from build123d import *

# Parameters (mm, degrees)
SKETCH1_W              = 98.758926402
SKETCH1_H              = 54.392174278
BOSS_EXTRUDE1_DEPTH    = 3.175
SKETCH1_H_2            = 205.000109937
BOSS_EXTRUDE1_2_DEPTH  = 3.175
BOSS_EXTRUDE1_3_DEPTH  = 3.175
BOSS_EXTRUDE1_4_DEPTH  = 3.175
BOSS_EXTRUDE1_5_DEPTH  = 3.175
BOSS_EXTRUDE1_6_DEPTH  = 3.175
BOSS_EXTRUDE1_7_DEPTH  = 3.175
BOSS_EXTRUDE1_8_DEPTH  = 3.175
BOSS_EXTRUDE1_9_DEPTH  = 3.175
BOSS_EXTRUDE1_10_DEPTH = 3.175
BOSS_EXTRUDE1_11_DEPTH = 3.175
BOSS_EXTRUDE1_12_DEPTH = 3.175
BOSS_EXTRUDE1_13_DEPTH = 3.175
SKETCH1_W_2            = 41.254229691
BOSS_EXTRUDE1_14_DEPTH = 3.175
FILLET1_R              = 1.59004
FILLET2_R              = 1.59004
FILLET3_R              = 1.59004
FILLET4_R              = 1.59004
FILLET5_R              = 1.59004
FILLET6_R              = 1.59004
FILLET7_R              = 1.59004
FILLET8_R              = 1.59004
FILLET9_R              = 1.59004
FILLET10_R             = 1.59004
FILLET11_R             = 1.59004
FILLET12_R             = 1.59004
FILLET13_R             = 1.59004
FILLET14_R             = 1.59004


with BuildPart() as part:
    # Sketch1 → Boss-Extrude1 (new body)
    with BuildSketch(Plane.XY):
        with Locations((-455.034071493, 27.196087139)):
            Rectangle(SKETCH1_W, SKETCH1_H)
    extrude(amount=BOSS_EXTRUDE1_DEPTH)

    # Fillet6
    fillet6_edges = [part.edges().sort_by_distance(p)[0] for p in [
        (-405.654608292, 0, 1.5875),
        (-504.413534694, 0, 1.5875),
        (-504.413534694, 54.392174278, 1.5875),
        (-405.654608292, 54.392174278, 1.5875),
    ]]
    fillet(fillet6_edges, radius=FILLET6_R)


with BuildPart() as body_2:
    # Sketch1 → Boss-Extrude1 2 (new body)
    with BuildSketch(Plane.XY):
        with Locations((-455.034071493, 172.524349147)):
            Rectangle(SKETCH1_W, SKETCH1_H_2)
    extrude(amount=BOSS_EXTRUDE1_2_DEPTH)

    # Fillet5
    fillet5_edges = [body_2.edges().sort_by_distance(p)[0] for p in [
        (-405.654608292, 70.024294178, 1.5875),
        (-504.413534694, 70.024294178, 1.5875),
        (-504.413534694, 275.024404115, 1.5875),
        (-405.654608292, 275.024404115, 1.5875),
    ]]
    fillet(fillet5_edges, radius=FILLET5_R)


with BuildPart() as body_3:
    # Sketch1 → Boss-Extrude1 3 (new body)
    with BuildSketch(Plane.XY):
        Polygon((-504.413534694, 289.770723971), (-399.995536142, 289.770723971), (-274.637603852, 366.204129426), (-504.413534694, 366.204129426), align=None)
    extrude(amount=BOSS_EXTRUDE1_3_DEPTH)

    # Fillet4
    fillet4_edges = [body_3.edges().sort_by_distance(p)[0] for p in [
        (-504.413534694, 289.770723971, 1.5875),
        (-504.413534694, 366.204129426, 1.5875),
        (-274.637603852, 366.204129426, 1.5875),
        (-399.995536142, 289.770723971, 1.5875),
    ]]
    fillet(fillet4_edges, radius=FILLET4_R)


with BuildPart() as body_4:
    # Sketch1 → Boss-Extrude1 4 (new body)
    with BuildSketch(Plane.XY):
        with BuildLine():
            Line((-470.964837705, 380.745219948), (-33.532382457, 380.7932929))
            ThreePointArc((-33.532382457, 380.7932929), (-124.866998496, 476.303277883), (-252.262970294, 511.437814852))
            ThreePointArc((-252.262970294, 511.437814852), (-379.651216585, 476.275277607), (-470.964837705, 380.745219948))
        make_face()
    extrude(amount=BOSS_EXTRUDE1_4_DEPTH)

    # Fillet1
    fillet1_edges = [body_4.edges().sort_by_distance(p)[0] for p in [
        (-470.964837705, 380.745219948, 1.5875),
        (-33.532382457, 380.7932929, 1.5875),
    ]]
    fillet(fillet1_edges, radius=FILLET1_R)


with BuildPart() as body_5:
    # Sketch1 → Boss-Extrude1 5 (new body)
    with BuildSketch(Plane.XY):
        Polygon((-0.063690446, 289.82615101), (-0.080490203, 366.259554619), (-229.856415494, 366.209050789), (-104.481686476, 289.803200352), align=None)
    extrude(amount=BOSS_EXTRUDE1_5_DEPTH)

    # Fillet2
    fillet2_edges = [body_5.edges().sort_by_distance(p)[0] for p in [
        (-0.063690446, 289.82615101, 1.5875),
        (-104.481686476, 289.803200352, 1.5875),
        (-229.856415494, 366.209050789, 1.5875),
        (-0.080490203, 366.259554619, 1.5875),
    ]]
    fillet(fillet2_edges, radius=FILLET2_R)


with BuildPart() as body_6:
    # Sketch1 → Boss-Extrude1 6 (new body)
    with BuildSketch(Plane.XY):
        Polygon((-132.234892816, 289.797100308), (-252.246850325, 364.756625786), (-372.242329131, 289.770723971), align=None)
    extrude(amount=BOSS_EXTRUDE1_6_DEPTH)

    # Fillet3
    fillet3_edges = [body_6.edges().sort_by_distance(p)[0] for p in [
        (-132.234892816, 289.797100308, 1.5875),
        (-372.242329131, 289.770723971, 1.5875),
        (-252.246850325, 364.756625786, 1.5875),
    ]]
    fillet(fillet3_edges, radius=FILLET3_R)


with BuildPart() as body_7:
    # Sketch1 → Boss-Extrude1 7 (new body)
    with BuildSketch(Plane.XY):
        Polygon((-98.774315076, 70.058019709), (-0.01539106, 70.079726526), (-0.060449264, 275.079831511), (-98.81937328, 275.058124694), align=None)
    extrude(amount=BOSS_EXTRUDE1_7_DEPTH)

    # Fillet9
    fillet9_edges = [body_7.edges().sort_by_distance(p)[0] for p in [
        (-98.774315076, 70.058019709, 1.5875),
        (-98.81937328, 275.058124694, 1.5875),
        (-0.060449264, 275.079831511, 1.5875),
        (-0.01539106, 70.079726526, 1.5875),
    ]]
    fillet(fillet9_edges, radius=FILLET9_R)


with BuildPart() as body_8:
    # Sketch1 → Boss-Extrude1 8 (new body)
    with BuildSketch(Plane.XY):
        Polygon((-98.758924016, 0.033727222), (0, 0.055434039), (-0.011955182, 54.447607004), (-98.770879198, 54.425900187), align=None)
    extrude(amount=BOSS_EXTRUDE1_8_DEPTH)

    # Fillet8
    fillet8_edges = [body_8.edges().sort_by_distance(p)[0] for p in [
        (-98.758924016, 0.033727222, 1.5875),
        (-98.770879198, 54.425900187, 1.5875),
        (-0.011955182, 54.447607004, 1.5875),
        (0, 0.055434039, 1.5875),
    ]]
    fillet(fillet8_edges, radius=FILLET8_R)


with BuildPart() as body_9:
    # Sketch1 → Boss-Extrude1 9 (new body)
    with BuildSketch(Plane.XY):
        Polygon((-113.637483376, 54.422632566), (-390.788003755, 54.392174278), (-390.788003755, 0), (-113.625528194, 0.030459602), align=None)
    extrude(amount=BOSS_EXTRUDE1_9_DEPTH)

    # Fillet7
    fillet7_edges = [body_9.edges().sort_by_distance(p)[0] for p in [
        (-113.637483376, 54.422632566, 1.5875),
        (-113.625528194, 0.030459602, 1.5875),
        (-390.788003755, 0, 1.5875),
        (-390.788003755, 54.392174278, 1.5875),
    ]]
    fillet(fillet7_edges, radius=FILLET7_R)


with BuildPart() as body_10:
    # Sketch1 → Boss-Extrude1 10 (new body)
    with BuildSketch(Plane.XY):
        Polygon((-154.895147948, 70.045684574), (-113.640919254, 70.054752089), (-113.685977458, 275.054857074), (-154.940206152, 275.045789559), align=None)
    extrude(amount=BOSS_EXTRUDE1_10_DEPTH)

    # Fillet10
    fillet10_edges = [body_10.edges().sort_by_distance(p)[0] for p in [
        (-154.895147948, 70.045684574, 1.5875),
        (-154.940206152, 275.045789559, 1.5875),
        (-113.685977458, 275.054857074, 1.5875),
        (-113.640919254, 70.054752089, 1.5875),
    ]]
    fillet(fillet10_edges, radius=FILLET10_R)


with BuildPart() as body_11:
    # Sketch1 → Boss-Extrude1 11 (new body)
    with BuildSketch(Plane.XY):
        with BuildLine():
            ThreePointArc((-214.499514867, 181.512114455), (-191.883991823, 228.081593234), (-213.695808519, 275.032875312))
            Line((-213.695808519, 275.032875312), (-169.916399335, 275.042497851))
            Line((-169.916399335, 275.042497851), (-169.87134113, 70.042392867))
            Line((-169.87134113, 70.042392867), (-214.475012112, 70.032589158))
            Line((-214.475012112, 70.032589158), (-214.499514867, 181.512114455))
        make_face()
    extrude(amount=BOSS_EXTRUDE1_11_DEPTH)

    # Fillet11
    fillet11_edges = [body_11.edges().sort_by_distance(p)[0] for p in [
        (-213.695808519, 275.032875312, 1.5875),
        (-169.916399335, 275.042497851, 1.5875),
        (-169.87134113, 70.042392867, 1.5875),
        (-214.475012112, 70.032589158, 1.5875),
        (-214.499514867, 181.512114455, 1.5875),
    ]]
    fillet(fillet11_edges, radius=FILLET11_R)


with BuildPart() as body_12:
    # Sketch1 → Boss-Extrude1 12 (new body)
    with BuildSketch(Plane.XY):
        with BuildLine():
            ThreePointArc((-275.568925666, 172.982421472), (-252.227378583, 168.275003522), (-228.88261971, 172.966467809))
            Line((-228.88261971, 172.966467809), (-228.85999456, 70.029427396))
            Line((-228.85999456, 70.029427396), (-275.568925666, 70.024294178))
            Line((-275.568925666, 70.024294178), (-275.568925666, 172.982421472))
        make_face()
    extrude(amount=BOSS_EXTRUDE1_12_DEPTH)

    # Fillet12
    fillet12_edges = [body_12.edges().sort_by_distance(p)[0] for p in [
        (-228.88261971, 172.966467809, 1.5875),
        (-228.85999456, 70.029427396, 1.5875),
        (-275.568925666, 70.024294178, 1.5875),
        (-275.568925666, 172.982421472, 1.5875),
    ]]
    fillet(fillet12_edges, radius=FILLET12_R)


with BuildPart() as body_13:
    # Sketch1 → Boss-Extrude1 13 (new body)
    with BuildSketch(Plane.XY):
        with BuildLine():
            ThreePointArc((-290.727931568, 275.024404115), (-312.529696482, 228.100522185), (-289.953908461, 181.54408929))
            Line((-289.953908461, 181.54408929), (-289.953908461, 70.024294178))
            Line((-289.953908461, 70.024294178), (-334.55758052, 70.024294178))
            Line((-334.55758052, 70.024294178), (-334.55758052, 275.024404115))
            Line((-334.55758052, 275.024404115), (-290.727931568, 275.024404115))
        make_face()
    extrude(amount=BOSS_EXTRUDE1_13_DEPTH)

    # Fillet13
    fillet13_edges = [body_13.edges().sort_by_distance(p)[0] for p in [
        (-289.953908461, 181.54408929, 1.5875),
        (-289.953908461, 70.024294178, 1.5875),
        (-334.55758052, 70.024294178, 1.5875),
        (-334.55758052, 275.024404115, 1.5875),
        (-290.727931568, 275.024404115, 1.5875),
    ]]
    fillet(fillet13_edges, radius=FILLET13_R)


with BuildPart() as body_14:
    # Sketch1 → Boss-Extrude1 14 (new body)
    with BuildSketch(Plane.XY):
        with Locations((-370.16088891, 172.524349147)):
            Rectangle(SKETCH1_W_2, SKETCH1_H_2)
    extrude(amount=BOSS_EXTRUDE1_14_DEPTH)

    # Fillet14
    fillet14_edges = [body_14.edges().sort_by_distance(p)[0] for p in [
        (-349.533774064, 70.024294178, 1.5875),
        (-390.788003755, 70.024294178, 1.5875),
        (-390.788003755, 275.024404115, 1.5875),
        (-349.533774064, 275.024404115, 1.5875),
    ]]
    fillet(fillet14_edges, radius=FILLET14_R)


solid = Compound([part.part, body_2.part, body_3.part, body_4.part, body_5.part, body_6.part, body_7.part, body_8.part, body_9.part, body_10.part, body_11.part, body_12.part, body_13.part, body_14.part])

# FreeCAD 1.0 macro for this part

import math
import FreeCAD as App
import Part
import Sketcher
from FreeCAD import Vector
Q = App.Units.Quantity


def edges_at(feature, points):
    """Names of the edges that pass closest to the given points."""
    edges = feature.Shape.Edges
    near = lambda p: min(range(len(edges)), key=lambda i: edges[i].distToShape(Part.Vertex(*p))[0])
    return sorted({f"Edge{near(p) + 1}" for p in points})


def add_polygon(sketch, points):
    """Adds a closed chain of lines whose ends are joined by coincident constraints."""
    first, n = sketch.GeometryCount, len(points)
    for a, b in zip(points, points[1:] + points[:1]):
        sketch.addGeometry(Part.LineSegment(App.Vector(*a, 0), App.Vector(*b, 0)), False)
    for i in range(n):
        sketch.addConstraint(Sketcher.Constraint("Coincident", first + i, 2, first + (i + 1) % n, 1))

doc = App.newDocument("Part")
params = doc.addObject("Spreadsheet::Sheet", "Params")
for row, (alias, value) in enumerate([
    ("pad1_length", "0.125 in"),
    ("fillet_radius", "0.0626 in"),
    ("pad2_length", "0.125 in"),
    ("fillet2_radius", "0.0626 in"),
    ("pad3_length", "0.125 in"),
    ("fillet3_radius", "0.0626 in"),
    ("pad4_length", "0.125 in"),
    ("fillet4_radius", "0.0626 in"),
    ("pad5_length", "0.125 in"),
    ("fillet5_radius", "0.0626 in"),
    ("pad6_length", "0.125 in"),
    ("fillet6_radius", "0.0626 in"),
    ("pad7_length", "0.125 in"),
    ("fillet7_radius", "0.0626 in"),
    ("pad8_length", "0.125 in"),
    ("fillet8_radius", "0.0626 in"),
    ("pad9_length", "0.125 in"),
    ("fillet9_radius", "0.0626 in"),
    ("pad10_length", "0.125 in"),
    ("fillet10_radius", "0.0626 in"),
    ("sketch11_radius", "2.375 in"),
    ("pad11_length", "0.125 in"),
    ("fillet11_radius", "0.0626 in"),
    ("sketch12_radius", "2.375 in"),
    ("pad12_length", "0.125 in"),
    ("fillet12_radius", "0.0626 in"),
    ("sketch13_radius", "2.375 in"),
    ("pad13_length", "0.125 in"),
    ("fillet13_radius", "0.0626 in"),
    ("pad14_length", "0.125 in"),
    ("fillet14_radius", "0.0626 in"),
], start=1):
    params.set(f"A{row}", alias)
    params.set(f"B{row}", "=" + value)
    params.setAlias(f"B{row}", alias)

body = doc.addObject("PartDesign::Body", "Body")

# Sketch on XY plane
sketch1 = doc.addObject("Sketcher::SketchObject", "Sketch")
body.addObject(sketch1)
sketch1.AttachmentSupport = (doc.XY_Plane, [""])
sketch1.MapMode = "FlatFace"
add_polygon(sketch1, [(-504, 54), (-504, 0), (-406, 0), (-406, 54)])  # lines 0-3
sketch1.addConstraint([
    Sketcher.Constraint("Vertical", 0),
    Sketcher.Constraint("Horizontal", 1),
    Sketcher.Constraint("Vertical", 2),
    Sketcher.Constraint("Horizontal", 3),
    Sketcher.Constraint("PointOnObject", 0, 2, -1),
    Sketcher.Constraint("DistanceX", 1, 1, 1, 2, Q("98.758926 mm")),
    Sketcher.Constraint("DistanceY", 0, 2, 0, 1, Q("54.392174 mm")),
    Sketcher.Constraint("DistanceX", 1, 2, -1, 1, Q("405.654608 mm")),
])
pad1 = doc.addObject("PartDesign::Pad", "Pad")
body.addObject(pad1)
pad1.Profile = sketch1
pad1.setExpression("Length", "Params.pad1_length")
doc.recompute()

fillet = doc.addObject("PartDesign::Fillet", "Fillet")
body.addObject(fillet)
fillet.Base = (pad1, edges_at(pad1, [
    (-405.655, 0, 1.587),
    (-504.414, 0, 1.587),
    (-504.414, 54.392, 1.587),
    (-405.655, 54.392, 1.587),
]))
fillet.setExpression("Radius", "Params.fillet_radius")
body2 = doc.addObject("PartDesign::Body", "Body001")

# Sketch on XY plane
sketch2 = doc.addObject("Sketcher::SketchObject", "Sketch001")
body2.addObject(sketch2)
sketch2.AttachmentSupport = (doc.getObject("XY_Plane001"), [""])
sketch2.MapMode = "FlatFace"
add_polygon(sketch2, [(-504, 275), (-504, 70), (-406, 70), (-406, 275)])  # lines 0-3
sketch2.addConstraint([
    Sketcher.Constraint("Vertical", 0),
    Sketcher.Constraint("Horizontal", 1),
    Sketcher.Constraint("Vertical", 2),
    Sketcher.Constraint("Horizontal", 3),
    Sketcher.Constraint("DistanceY", 0, 2, 0, 1, Q("205.00011 mm")),
    Sketcher.Constraint("DistanceX", 1, 1, 1, 2, Q("98.758926 mm")),
    Sketcher.Constraint("DistanceX", 1, 2, -1, 1, Q("405.654608 mm")),
    Sketcher.Constraint("DistanceY", -1, 1, 0, 2, Q("70.024294 mm")),
])
pad2 = doc.addObject("PartDesign::Pad", "Pad001")
body2.addObject(pad2)
pad2.Profile = sketch2
pad2.setExpression("Length", "Params.pad2_length")
doc.recompute()

fillet2 = doc.addObject("PartDesign::Fillet", "Fillet001")
body2.addObject(fillet2)
fillet2.Base = (pad2, edges_at(pad2, [
    (-405.655, 70.024, 1.587),
    (-504.414, 70.024, 1.587),
    (-504.414, 275.024, 1.587),
    (-405.655, 275.024, 1.587),
]))
fillet2.setExpression("Radius", "Params.fillet2_radius")
body3 = doc.addObject("PartDesign::Body", "Body002")

# Sketch on XY plane
sketch3 = doc.addObject("Sketcher::SketchObject", "Sketch002")
body3.addObject(sketch3)
sketch3.AttachmentSupport = (doc.getObject("XY_Plane002"), [""])
sketch3.MapMode = "FlatFace"
add_polygon(sketch3, [(-504, 290), (-400, 290), (-275, 366), (-504, 366)])  # lines 0-3
sketch3.addConstraint([
    Sketcher.Constraint("Horizontal", 0),
    Sketcher.Constraint("Horizontal", 2),
    Sketcher.Constraint("Vertical", 3),
    Sketcher.Constraint("DistanceX", 0, 1, 0, 2, Q("104.417999 mm")),
    Sketcher.Constraint("DistanceX", 2, 2, 2, 1, Q("229.775931 mm")),
    Sketcher.Constraint("Distance", 1, Q("146.821922 mm")),
    Sketcher.Constraint("DistanceY", -1, 1, 1, 2, Q("366.204129 mm")),
    Sketcher.Constraint("DistanceX", 0, 2, -1, 1, Q("399.995536 mm")),
])
pad3 = doc.addObject("PartDesign::Pad", "Pad002")
body3.addObject(pad3)
pad3.Profile = sketch3
pad3.setExpression("Length", "Params.pad3_length")
doc.recompute()

fillet3 = doc.addObject("PartDesign::Fillet", "Fillet002")
body3.addObject(fillet3)
fillet3.Base = (pad3, edges_at(pad3, [
    (-504.414, 289.771, 1.587),
    (-504.414, 366.204, 1.587),
    (-274.638, 366.204, 1.587),
    (-399.996, 289.771, 1.587),
]))
fillet3.setExpression("Radius", "Params.fillet3_radius")
body4 = doc.addObject("PartDesign::Body", "Body003")

# Sketch on XY plane
sketch4 = doc.addObject("Sketcher::SketchObject", "Sketch003")
body4.addObject(sketch4)
sketch4.AttachmentSupport = (doc.getObject("XY_Plane003"), [""])
sketch4.MapMode = "FlatFace"
sketch4.addGeometry([
    Part.LineSegment(Vector(-471, 381, 0), Vector(-34, 381, 0)),
    Part.ArcOfCircle(Part.Circle(Vector(-252, 263, 0), Vector(0, 0, 1), 248), math.radians(28), math.radians(90)),
    Part.ArcOfCircle(Part.Circle(Vector(-252, 263, 0), Vector(0, 0, 1), 248), math.radians(90), math.radians(152)),
], False)
sketch4.addConstraint([
    Sketcher.Constraint("Coincident", 0, 2, 1, 1),
    Sketcher.Constraint("Coincident", 1, 2, 2, 1),
    Sketcher.Constraint("Coincident", 2, 2, 0, 1),
    Sketcher.Constraint("Equal", 1, 2),
    Sketcher.Constraint("Vertical", 2, 3, 1, 2),
    Sketcher.Constraint("Radius", 1, Q("248.334885 mm")),
    Sketcher.Constraint("DistanceX", 2, 3, -1, 1, Q("252.26297 mm")),
    Sketcher.Constraint("DistanceY", -1, 1, 2, 3, Q("263.102929 mm")),
    Sketcher.Constraint("DistanceY", -1, 1, 2, 2, Q("380.74522 mm")),
    Sketcher.Constraint("DistanceY", 0, 2, 1, 2, Q("130.644522 mm")),
    Sketcher.Constraint("DistanceX", 2, 2, 1, 3, Q("218.75645 mm")),
])
pad4 = doc.addObject("PartDesign::Pad", "Pad003")
body4.addObject(pad4)
pad4.Profile = sketch4
pad4.setExpression("Length", "Params.pad4_length")
doc.recompute()

fillet4 = doc.addObject("PartDesign::Fillet", "Fillet003")
body4.addObject(fillet4)
fillet4.Base = (pad4, edges_at(pad4, [(-470.965, 380.745, 1.587), (-33.532, 380.793, 1.587)]))
fillet4.setExpression("Radius", "Params.fillet4_radius")
body5 = doc.addObject("PartDesign::Body", "Body004")

# Sketch on XY plane
sketch5 = doc.addObject("Sketcher::SketchObject", "Sketch004")
body5.addObject(sketch5)
sketch5.AttachmentSupport = (doc.getObject("XY_Plane004"), [""])
sketch5.MapMode = "FlatFace"
add_polygon(sketch5, [(0, 290), (0, 366), (-230, 366), (-104, 290)])  # lines 0-3
sketch5.addConstraint([
    Sketcher.Constraint("Perpendicular", 0, 1),
    Sketcher.Constraint("Parallel", 1, 3),
    Sketcher.Constraint("Distance", 3, Q("104.417999 mm")),
    Sketcher.Constraint("DistanceY", -1, 1, 2, 2, Q("289.8032 mm")),
    Sketcher.Constraint("DistanceX", 0, 2, 3, 2, Q("0.0168 mm")),
    Sketcher.Constraint("DistanceY", 3, 2, 1, 2, Q("76.3829 mm")),
    Sketcher.Constraint("Distance", 1, Q("229.775931 mm")),
    Sketcher.Constraint("DistanceX", 0, 2, -1, 1, Q("0.08049 mm")),
])
pad5 = doc.addObject("PartDesign::Pad", "Pad004")
body5.addObject(pad5)
pad5.Profile = sketch5
pad5.setExpression("Length", "Params.pad5_length")
doc.recompute()

fillet5 = doc.addObject("PartDesign::Fillet", "Fillet004")
body5.addObject(fillet5)
fillet5.Base = (pad5, edges_at(pad5, [
    (-0.064, 289.826, 1.587),
    (-104.482, 289.803, 1.587),
    (-229.856, 366.209, 1.587),
    (-0.08, 366.26, 1.587),
]))
fillet5.setExpression("Radius", "Params.fillet5_radius")
body6 = doc.addObject("PartDesign::Body", "Body005")

# Sketch on XY plane
sketch6 = doc.addObject("Sketcher::SketchObject", "Sketch005")
body6.addObject(sketch6)
sketch6.AttachmentSupport = (doc.getObject("XY_Plane005"), [""])
sketch6.MapMode = "FlatFace"
add_polygon(sketch6, [(-132, 290), (-252, 365), (-372, 290)])  # lines 0-2
sketch6.addConstraint([
    Sketcher.Constraint("Equal", 0, 1),
    Sketcher.Constraint("DistanceY", -1, 1, 2, 2, Q("289.7971 mm")),
    Sketcher.Constraint("DistanceY", 1, 2, 0, 2, Q("74.985902 mm")),
    Sketcher.Constraint("Distance", 0, Q("141.498411 mm")),
    Sketcher.Constraint("DistanceX", 0, 2, -1, 1, Q("252.24685 mm")),
    Sketcher.Constraint("Distance", 2, Q("240.007438 mm")),
])
pad6 = doc.addObject("PartDesign::Pad", "Pad005")
body6.addObject(pad6)
pad6.Profile = sketch6
pad6.setExpression("Length", "Params.pad6_length")
doc.recompute()

fillet6 = doc.addObject("PartDesign::Fillet", "Fillet005")
body6.addObject(fillet6)
fillet6.Base = (pad6, edges_at(pad6, [(-132.235, 289.797, 1.587), (-372.242, 289.771, 1.587), (-252.247, 364.757, 1.587)]))
fillet6.setExpression("Radius", "Params.fillet6_radius")
body7 = doc.addObject("PartDesign::Body", "Body006")

# Sketch on XY plane
sketch7 = doc.addObject("Sketcher::SketchObject", "Sketch006")
body7.addObject(sketch7)
sketch7.AttachmentSupport = (doc.getObject("XY_Plane006"), [""])
sketch7.MapMode = "FlatFace"
add_polygon(sketch7, [(-99, 70), (0, 70), (0, 275), (-99, 275)])  # lines 0-3
sketch7.addConstraint([
    Sketcher.Constraint("Perpendicular", 0, 1),
    Sketcher.Constraint("Perpendicular", 1, 2),
    Sketcher.Constraint("Perpendicular", 2, 3),
    Sketcher.Constraint("DistanceY", 0, 2, 2, 2, Q("204.978398 mm")),
    Sketcher.Constraint("Distance", 1, Q("205.00011 mm")),
    Sketcher.Constraint("DistanceX", 0, 2, -1, 1, Q("0.015391 mm")),
    Sketcher.Constraint("DistanceY", -1, 1, 1, 2, Q("275.079832 mm")),
    Sketcher.Constraint("Distance", 0, Q("98.758926 mm")),
])
pad7 = doc.addObject("PartDesign::Pad", "Pad006")
body7.addObject(pad7)
pad7.Profile = sketch7
pad7.setExpression("Length", "Params.pad7_length")
doc.recompute()

fillet7 = doc.addObject("PartDesign::Fillet", "Fillet006")
body7.addObject(fillet7)
fillet7.Base = (pad7, edges_at(pad7, [
    (-98.774, 70.058, 1.587),
    (-98.819, 275.058, 1.587),
    (-0.06, 275.08, 1.587),
    (-0.015, 70.08, 1.587),
]))
fillet7.setExpression("Radius", "Params.fillet7_radius")
body8 = doc.addObject("PartDesign::Body", "Body007")

# Sketch on XY plane
sketch8 = doc.addObject("Sketcher::SketchObject", "Sketch007")
body8.addObject(sketch8)
sketch8.AttachmentSupport = (doc.getObject("XY_Plane007"), [""])
sketch8.MapMode = "FlatFace"
add_polygon(sketch8, [(-99, 0), (0, 0), (0, 54), (-99, 54)])  # lines 0-3
sketch8.addConstraint([
    Sketcher.Constraint("PointOnObject", 0, 2, -2),
    Sketcher.Constraint("Perpendicular", 0, 1),
    Sketcher.Constraint("Perpendicular", 1, 2),
    Sketcher.Constraint("Perpendicular", 2, 3),
    Sketcher.Constraint("DistanceY", -1, 1, 2, 2, Q("54.4259 mm")),
    Sketcher.Constraint("DistanceX", 2, 2, -1, 1, Q("98.770879 mm")),
    Sketcher.Constraint("DistanceX", 3, 2, 1, 2, Q("98.746969 mm")),
    Sketcher.Constraint("DistanceY", 3, 2, 1, 2, Q("54.41388 mm")),
])
pad8 = doc.addObject("PartDesign::Pad", "Pad007")
body8.addObject(pad8)
pad8.Profile = sketch8
pad8.setExpression("Length", "Params.pad8_length")
doc.recompute()

fillet8 = doc.addObject("PartDesign::Fillet", "Fillet007")
body8.addObject(fillet8)
fillet8.Base = (pad8, edges_at(pad8, [
    (-98.759, 0.034, 1.587),
    (-98.771, 54.426, 1.587),
    (-0.012, 54.448, 1.587),
    (0, 0.055, 1.587),
]))
fillet8.setExpression("Radius", "Params.fillet8_radius")
body9 = doc.addObject("PartDesign::Body", "Body008")

# Sketch on XY plane
sketch9 = doc.addObject("Sketcher::SketchObject", "Sketch008")
body9.addObject(sketch9)
sketch9.AttachmentSupport = (doc.getObject("XY_Plane008"), [""])
sketch9.MapMode = "FlatFace"
add_polygon(sketch9, [(-114, 54), (-391, 54), (-391, 0), (-114, 0)])  # lines 0-3
sketch9.addConstraint([
    Sketcher.Constraint("Vertical", 1),
    Sketcher.Constraint("PointOnObject", 1, 2, -1),
    Sketcher.Constraint("Parallel", 0, 2),
    Sketcher.Constraint("DistanceY", 1, 2, 1, 1, Q("54.392174 mm")),
    Sketcher.Constraint("DistanceX", 2, 2, -1, 1, Q("113.625528 mm")),
    Sketcher.Constraint("DistanceY", -1, 1, 2, 2, Q("0.03046 mm")),
    Sketcher.Constraint("DistanceX", 0, 2, 3, 2, Q("277.15052 mm")),
    Sketcher.Constraint("Distance", 2, Q("277.162477 mm")),
])
pad9 = doc.addObject("PartDesign::Pad", "Pad008")
body9.addObject(pad9)
pad9.Profile = sketch9
pad9.setExpression("Length", "Params.pad9_length")
doc.recompute()

fillet9 = doc.addObject("PartDesign::Fillet", "Fillet008")
body9.addObject(fillet9)
fillet9.Base = (pad9, edges_at(pad9, [
    (-113.637, 54.423, 1.587),
    (-113.626, 0.03, 1.587),
    (-390.788, 0, 1.587),
    (-390.788, 54.392, 1.587),
]))
fillet9.setExpression("Radius", "Params.fillet9_radius")
body10 = doc.addObject("PartDesign::Body", "Body009")

# Sketch on XY plane
sketch10 = doc.addObject("Sketcher::SketchObject", "Sketch009")
body10.addObject(sketch10)
sketch10.AttachmentSupport = (doc.getObject("XY_Plane009"), [""])
sketch10.MapMode = "FlatFace"
add_polygon(sketch10, [(-155, 70), (-114, 70), (-114, 275), (-155, 275)])  # lines 0-3
sketch10.addConstraint([
    Sketcher.Constraint("Perpendicular", 0, 1),
    Sketcher.Constraint("Perpendicular", 1, 2),
    Sketcher.Constraint("Perpendicular", 2, 3),
    Sketcher.Constraint("Distance", 0, Q("41.25423 mm")),
    Sketcher.Constraint("Distance", 1, Q("205.00011 mm")),
    Sketcher.Constraint("DistanceX", 0, 2, -1, 1, Q("113.640919 mm")),
    Sketcher.Constraint("DistanceY", -1, 1, 2, 2, Q("275.04579 mm")),
    Sketcher.Constraint("DistanceX", 1, 2, 0, 2, Q("0.045058 mm")),
])
pad10 = doc.addObject("PartDesign::Pad", "Pad009")
body10.addObject(pad10)
pad10.Profile = sketch10
pad10.setExpression("Length", "Params.pad10_length")
doc.recompute()

fillet10 = doc.addObject("PartDesign::Fillet", "Fillet009")
body10.addObject(fillet10)
fillet10.Base = (pad10, edges_at(pad10, [
    (-154.895, 70.046, 1.587),
    (-154.94, 275.046, 1.587),
    (-113.686, 275.055, 1.587),
    (-113.641, 70.055, 1.587),
]))
fillet10.setExpression("Radius", "Params.fillet10_radius")
body11 = doc.addObject("PartDesign::Body", "Body010")

# Sketch on XY plane
sketch11 = doc.addObject("Sketcher::SketchObject", "Sketch010")
body11.addObject(sketch11)
sketch11.AttachmentSupport = (doc.getObject("XY_Plane010"), [""])
sketch11.MapMode = "FlatFace"
sketch11.addGeometry([
    Part.ArcOfCircle(Part.Circle(Vector(-252.206764, 228.6, 0), Vector(0, 0, 1), 60.325), math.radians(-51.312794), math.radians(50.328032)),  # 0
    Part.LineSegment(Vector(-214.499515, 181.512114, 0), Vector(-214.475012, 70.032589, 0)),  # 1
    Part.LineSegment(Vector(-214.475012, 70.032589, 0), Vector(-169.871341, 70.042393, 0)),  # 2
    Part.LineSegment(Vector(-169.871341, 70.042393, 0), Vector(-169.916399, 275.042498, 0)),  # 3
    Part.LineSegment(Vector(-169.916399, 275.042498, 0), Vector(-213.695809, 275.032875, 0)),  # 4
], False)
sketch11.addConstraint([
    Sketcher.Constraint("Coincident", 0, 1, 1, 1),
    Sketcher.Constraint("Coincident", 1, 2, 2, 1),
    Sketcher.Constraint("Coincident", 2, 2, 3, 1),
    Sketcher.Constraint("Coincident", 3, 2, 4, 1),
    Sketcher.Constraint("Coincident", 4, 2, 0, 2),
    Sketcher.Constraint("DistanceY", -1, 1, 0, 3, Q("9 in")),
    Sketcher.Constraint("Radius", 0, Q("2.375 in")),
    Sketcher.Constraint("DistanceX", 0, 3, -1, 1, Q("9.9294002 in")),
    Sketcher.Constraint("DistanceX", 3, 2, -1, 1, Q("169.916399 mm")),
    Sketcher.Constraint("Distance", 3, Q("205.00011 mm")),
    Sketcher.Constraint("Distance", 4, Q("43.77941 mm")),
    Sketcher.Constraint("DistanceY", -1, 1, 1, 2, Q("70.032589 mm")),
    Sketcher.Constraint("DistanceX", 2, 2, -1, 1, Q("169.871341 mm")),
    Sketcher.Constraint("DistanceX", 0, 3, 0, 1, Q("37.707249 mm")),
    Sketcher.Constraint("DistanceX", 1, 2, 2, 2, Q("44.603671 mm")),
    Sketcher.Constraint("DistanceY", 2, 2, 0, 1, Q("111.469722 mm")),
])
sketch11.setExpression("Constraints[6]", "Params.sketch11_radius")
pad11 = doc.addObject("PartDesign::Pad", "Pad010")
body11.addObject(pad11)
pad11.Profile = sketch11
pad11.setExpression("Length", "Params.pad11_length")
doc.recompute()

fillet11 = doc.addObject("PartDesign::Fillet", "Fillet010")
body11.addObject(fillet11)
fillet11.Base = (pad11, edges_at(pad11, [
    (-213.696, 275.033, 1.587),
    (-169.916, 275.042, 1.587),
    (-169.871, 70.042, 1.587),
    (-214.475, 70.033, 1.587),
    (-214.5, 181.512, 1.587),
]))
fillet11.setExpression("Radius", "Params.fillet11_radius")
body12 = doc.addObject("PartDesign::Body", "Body011")

# Sketch on XY plane
sketch12 = doc.addObject("Sketcher::SketchObject", "Sketch011")
body12.addObject(sketch12)
sketch12.AttachmentSupport = (doc.getObject("XY_Plane011"), [""])
sketch12.MapMode = "FlatFace"
sketch12.addGeometry([
    Part.ArcOfCircle(Part.Circle(Vector(-252, 229, 0), Vector(0, 0, 1), 60), math.radians(-113), math.radians(-67)),
    Part.LineSegment(Vector(-276, 173, 0), Vector(-276, 70, 0)),
    Part.LineSegment(Vector(-276, 70, 0), Vector(-229, 70, 0)),
    Part.LineSegment(Vector(-229, 70, 0), Vector(-229, 173, 0)),
], False)
sketch12.addConstraint([
    Sketcher.Constraint("Coincident", 0, 1, 1, 1),
    Sketcher.Constraint("Coincident", 1, 2, 2, 1),
    Sketcher.Constraint("Coincident", 2, 2, 3, 1),
    Sketcher.Constraint("Coincident", 3, 2, 0, 2),
    Sketcher.Constraint("Vertical", 1),
    Sketcher.Constraint("DistanceY", -1, 1, 0, 3, Q("9 in")),
    Sketcher.Constraint("Radius", 0, Q("2.375 in")),
    Sketcher.Constraint("DistanceX", 0, 3, -1, 1, Q("9.9294002 in")),
    Sketcher.Constraint("Distance", 2, Q("46.708931 mm")),
    Sketcher.Constraint("DistanceY", 1, 2, 1, 1, Q("102.958127 mm")),
    Sketcher.Constraint("DistanceY", -1, 1, 0, 1, Q("172.982421 mm")),
    Sketcher.Constraint("DistanceX", 3, 2, -1, 1, Q("228.88262 mm")),
    Sketcher.Constraint("DistanceY", 2, 2, 3, 2, Q("102.93704 mm")),
])
sketch12.setExpression("Constraints[6]", "Params.sketch12_radius")
pad12 = doc.addObject("PartDesign::Pad", "Pad011")
body12.addObject(pad12)
pad12.Profile = sketch12
pad12.setExpression("Length", "Params.pad12_length")
doc.recompute()

fillet12 = doc.addObject("PartDesign::Fillet", "Fillet011")
body12.addObject(fillet12)
fillet12.Base = (pad12, edges_at(pad12, [
    (-228.883, 172.966, 1.587),
    (-228.86, 70.029, 1.587),
    (-275.569, 70.024, 1.587),
    (-275.569, 172.982, 1.587),
]))
fillet12.setExpression("Radius", "Params.fillet12_radius")
body13 = doc.addObject("PartDesign::Body", "Body012")

# Sketch on XY plane
sketch13 = doc.addObject("Sketcher::SketchObject", "Sketch012")
body13.addObject(sketch13)
sketch13.AttachmentSupport = (doc.getObject("XY_Plane012"), [""])
sketch13.MapMode = "FlatFace"
sketch13.addGeometry([
    Part.ArcOfCircle(Part.Circle(Vector(-252, 229, 0), Vector(0, 0, 1), 60), math.radians(130), math.radians(231)),  # 0
    Part.LineSegment(Vector(-291, 275, 0), Vector(-335, 275, 0)),  # 1
    Part.LineSegment(Vector(-335, 275, 0), Vector(-335, 70, 0)),  # 2
    Part.LineSegment(Vector(-335, 70, 0), Vector(-290, 70, 0)),  # 3
    Part.LineSegment(Vector(-290, 70, 0), Vector(-290, 182, 0)),  # 4
], False)
sketch13.addConstraint([
    Sketcher.Constraint("Coincident", 0, 1, 1, 1),
    Sketcher.Constraint("Coincident", 1, 2, 2, 1),
    Sketcher.Constraint("Coincident", 2, 2, 3, 1),
    Sketcher.Constraint("Coincident", 3, 2, 4, 1),
    Sketcher.Constraint("Coincident", 4, 2, 0, 2),
    Sketcher.Constraint("Horizontal", 1),
    Sketcher.Constraint("Vertical", 2),
    Sketcher.Constraint("Horizontal", 3),
    Sketcher.Constraint("Vertical", 4),
    Sketcher.Constraint("DistanceY", -1, 1, 0, 3, Q("9 in")),
    Sketcher.Constraint("Radius", 0, Q("2.375 in")),
    Sketcher.Constraint("DistanceX", 0, 3, -1, 1, Q("9.9294002 in")),
    Sketcher.Constraint("DistanceX", 1, 2, 1, 1, Q("43.829649 mm")),
    Sketcher.Constraint("DistanceY", 2, 2, 2, 1, Q("205.00011 mm")),
    Sketcher.Constraint("DistanceX", 3, 1, 3, 2, Q("44.603672 mm")),
    Sketcher.Constraint("DistanceY", 4, 1, 4, 2, Q("111.519795 mm")),
])
sketch13.setExpression("Constraints[10]", "Params.sketch13_radius")
pad13 = doc.addObject("PartDesign::Pad", "Pad012")
body13.addObject(pad13)
pad13.Profile = sketch13
pad13.setExpression("Length", "Params.pad13_length")
doc.recompute()

fillet13 = doc.addObject("PartDesign::Fillet", "Fillet012")
body13.addObject(fillet13)
fillet13.Base = (pad13, edges_at(pad13, [
    (-289.954, 181.544, 1.587),
    (-289.954, 70.024, 1.587),
    (-334.558, 70.024, 1.587),
    (-334.558, 275.024, 1.587),
    (-290.728, 275.024, 1.587),
]))
fillet13.setExpression("Radius", "Params.fillet13_radius")
body14 = doc.addObject("PartDesign::Body", "Body013")

# Sketch on XY plane
sketch14 = doc.addObject("Sketcher::SketchObject", "Sketch013")
body14.addObject(sketch14)
sketch14.AttachmentSupport = (doc.getObject("XY_Plane013"), [""])
sketch14.MapMode = "FlatFace"
add_polygon(sketch14, [(-391, 275), (-391, 70), (-350, 70), (-350, 275)])  # lines 0-3
sketch14.addConstraint([
    Sketcher.Constraint("Vertical", 0),
    Sketcher.Constraint("Horizontal", 1),
    Sketcher.Constraint("Vertical", 2),
    Sketcher.Constraint("Horizontal", 3),
    Sketcher.Constraint("DistanceX", 1, 1, 1, 2, Q("41.25423 mm")),
    Sketcher.Constraint("DistanceY", 0, 2, 0, 1, Q("205.00011 mm")),
    Sketcher.Constraint("DistanceX", 0, 2, -1, 1, Q("390.788004 mm")),
    Sketcher.Constraint("DistanceY", -1, 1, 0, 2, Q("70.024294 mm")),
])
pad14 = doc.addObject("PartDesign::Pad", "Pad013")
body14.addObject(pad14)
pad14.Profile = sketch14
pad14.setExpression("Length", "Params.pad14_length")
doc.recompute()

fillet14 = doc.addObject("PartDesign::Fillet", "Fillet013")
body14.addObject(fillet14)
fillet14.Base = (pad14, edges_at(pad14, [
    (-349.534, 70.024, 1.587),
    (-390.788, 70.024, 1.587),
    (-390.788, 275.024, 1.587),
    (-349.534, 275.024, 1.587),
]))
fillet14.setExpression("Radius", "Params.fillet14_radius")

doc.recompute()
